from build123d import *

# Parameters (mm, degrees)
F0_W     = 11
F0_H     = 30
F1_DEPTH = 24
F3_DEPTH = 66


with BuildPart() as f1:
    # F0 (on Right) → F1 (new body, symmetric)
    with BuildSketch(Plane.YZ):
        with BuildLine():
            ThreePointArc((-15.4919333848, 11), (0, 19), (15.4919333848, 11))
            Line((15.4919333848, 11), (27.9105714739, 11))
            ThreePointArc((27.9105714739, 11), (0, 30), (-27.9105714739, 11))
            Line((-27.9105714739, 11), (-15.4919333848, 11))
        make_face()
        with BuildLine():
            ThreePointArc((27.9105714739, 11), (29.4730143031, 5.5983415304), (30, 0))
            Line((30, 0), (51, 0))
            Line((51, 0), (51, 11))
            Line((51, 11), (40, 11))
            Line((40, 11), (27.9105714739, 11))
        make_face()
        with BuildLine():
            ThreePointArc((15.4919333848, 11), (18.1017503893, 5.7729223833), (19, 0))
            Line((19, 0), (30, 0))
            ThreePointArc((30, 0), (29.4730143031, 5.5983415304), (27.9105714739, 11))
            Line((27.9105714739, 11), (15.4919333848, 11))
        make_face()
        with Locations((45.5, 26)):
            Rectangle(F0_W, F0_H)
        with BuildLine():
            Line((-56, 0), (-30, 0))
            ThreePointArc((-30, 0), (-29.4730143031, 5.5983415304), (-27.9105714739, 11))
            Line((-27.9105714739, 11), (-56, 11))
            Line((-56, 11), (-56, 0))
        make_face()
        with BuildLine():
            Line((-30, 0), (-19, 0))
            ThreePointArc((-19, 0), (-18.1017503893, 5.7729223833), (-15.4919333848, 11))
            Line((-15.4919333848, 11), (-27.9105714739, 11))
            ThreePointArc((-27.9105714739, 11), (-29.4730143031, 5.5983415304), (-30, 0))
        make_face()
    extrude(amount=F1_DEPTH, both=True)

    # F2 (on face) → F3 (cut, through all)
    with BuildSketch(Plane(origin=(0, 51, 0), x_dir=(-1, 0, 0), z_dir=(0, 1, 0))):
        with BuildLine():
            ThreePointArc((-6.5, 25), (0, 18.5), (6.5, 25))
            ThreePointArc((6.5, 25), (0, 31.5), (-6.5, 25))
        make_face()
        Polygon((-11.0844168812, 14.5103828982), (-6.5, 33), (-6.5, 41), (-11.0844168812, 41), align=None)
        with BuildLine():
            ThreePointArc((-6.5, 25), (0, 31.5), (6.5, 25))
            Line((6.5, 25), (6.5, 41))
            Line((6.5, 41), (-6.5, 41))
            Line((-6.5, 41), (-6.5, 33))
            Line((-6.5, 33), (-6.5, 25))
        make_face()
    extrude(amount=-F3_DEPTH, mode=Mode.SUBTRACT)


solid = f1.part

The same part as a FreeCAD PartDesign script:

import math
import FreeCAD as App
import Part
import Sketcher
from FreeCAD import Vector
Q = App.Units.Quantity

doc = App.newDocument("Part")
body = doc.addObject("PartDesign::Body", "Body")

# Sketch on YZ plane
sketch1 = doc.addObject("Sketcher::SketchObject", "Sketch")
body.addObject(sketch1)
sketch1.AttachmentSupport = (doc.YZ_Plane, [""])
sketch1.MapMode = "FlatFace"
sketch1.addGeometry([
    Part.ArcOfCircle(Part.Circle(Vector(0, 0, 0), Vector(0, 0, 1), 19), math.radians(35), math.radians(145)),  # 0
    Part.ArcOfCircle(Part.Circle(Vector(0, 0, 0), Vector(0, 0, 1), 19), math.radians(0), math.radians(35)),  # 1
    Part.LineSegment(Vector(19, 0, 0), Vector(51, 0, 0)),  # 2
    Part.LineSegment(Vector(51, 0, 0), Vector(51, 41, 0)),  # 3
    Part.LineSegment(Vector(51, 41, 0), Vector(40, 41, 0)),  # 4
    Part.LineSegment(Vector(40, 41, 0), Vector(40, 11, 0)),  # 5
    Part.LineSegment(Vector(40, 11, 0), Vector(28, 11, 0)),  # 6
    Part.ArcOfCircle(Part.Circle(Vector(0, 0, 0), Vector(0, 0, 1), 30), math.radians(22), math.radians(158)),  # 7
    Part.LineSegment(Vector(-28, 11, 0), Vector(-56, 11, 0)),  # 8
    Part.LineSegment(Vector(-56, 11, 0), Vector(-56, 0, 0)),  # 9
    Part.LineSegment(Vector(-56, 0, 0), Vector(-19, 0, 0)),  # 10
    Part.ArcOfCircle(Part.Circle(Vector(0, 0, 0), Vector(0, 0, 1), 19), math.radians(145), math.radians(180)),  # 11
], False)
sketch1.addConstraint([
    Sketcher.Constraint("Tangent", 0, 1, 1, 2),
    Sketcher.Constraint("Coincident", 1, 1, 2, 1),
    Sketcher.Constraint("Coincident", 2, 2, 3, 1),
    Sketcher.Constraint("Coincident", 3, 2, 4, 1),
    Sketcher.Constraint("Coincident", 4, 2, 5, 1),
    Sketcher.Constraint("Coincident", 5, 2, 6, 1),
    Sketcher.Constraint("Coincident", 6, 2, 7, 1),
    Sketcher.Constraint("Coincident", 7, 2, 8, 1),
    Sketcher.Constraint("Coincident", 8, 2, 9, 1),
    Sketcher.Constraint("Coincident", 9, 2, 10, 1),
    Sketcher.Constraint("Coincident", 10, 2, 11, 2),
    Sketcher.Constraint("Tangent", 11, 1, 0, 2),
    Sketcher.Constraint("Horizontal", 2),
    Sketcher.Constraint("Vertical", 3),
    Sketcher.Constraint("Horizontal", 4),
    Sketcher.Constraint("Vertical", 5),
    Sketcher.Constraint("Horizontal", 6),
    Sketcher.Constraint("Horizontal", 8),
    Sketcher.Constraint("Vertical", 9),
    Sketcher.Constraint("Horizontal", 10),
    Sketcher.Constraint("Coincident", 0, 3, -1, 1),
    Sketcher.Constraint("Coincident", 7, 3, -1, 1),
    Sketcher.Constraint("Equal", 0, 1),
    Sketcher.Constraint("Equal", 1, 11),
    Sketcher.Constraint("PointOnObject", 1, 1, -1),
    Sketcher.Constraint("PointOnObject", 9, 2, -1),
    Sketcher.Constraint("Horizontal", 0, 1, 5, 2),
    Sketcher.Constraint("Horizontal", 6, 2, 7, 2),
    Sketcher.Constraint("Horizontal", 8, 2, 11, 1),
    Sketcher.Constraint("Equal", 4, 9),
    Sketcher.Constraint("Radius", 0, Q("19 mm")),
    Sketcher.Constraint("Radius", 7, Q("30 mm")),
    Sketcher.Constraint("DistanceX", 2, 1, 2, 2, Q("32 mm")),
    Sketcher.Constraint("DistanceX", 4, 2, 4, 1, Q("11 mm")),
    Sketcher.Constraint("DistanceX", 10, 1, 10, 2, Q("37 mm")),
    Sketcher.Constraint("DistanceY", 3, 1, 3, 2, Q("41 mm")),
])
pad1 = doc.addObject("PartDesign::Pad", "Pad")
body.addObject(pad1)
pad1.Profile = sketch1
pad1.Length = 48
pad1.Midplane = True

# Sketch on XZ plane
sketch2 = doc.addObject("Sketcher::SketchObject", "Sketch001")
body.addObject(sketch2)
sketch2.AttachmentSupport = (doc.XZ_Plane, [""])
sketch2.MapMode = "FlatFace"
sketch2.AttachmentOffset = App.Placement(Vector(0, 0, -51), App.Rotation())
sketch2.addGeometry([
    Part.ArcOfCircle(Part.Circle(Vector(0, 25, 0), Vector(0, 0, 1), 6), math.radians(180), math.radians(360)),  # 0
    Part.LineSegment(Vector(-6, 25, 0), Vector(-6, 41, 0)),  # 1
    Part.LineSegment(Vector(-6, 41, 0), Vector(11, 41, 0)),  # 2
    Part.LineSegment(Vector(11, 41, 0), Vector(11, 15, 0)),  # 3
    Part.LineSegment(Vector(11, 15, 0), Vector(6, 33, 0)),  # 4
    Part.LineSegment(Vector(6, 33, 0), Vector(6, 25, 0)),  # 5
], False)
sketch2.addConstraint([
    Sketcher.Constraint("Tangent", 0, 1, 1, 1),
    Sketcher.Constraint("Coincident", 1, 2, 2, 1),
    Sketcher.Constraint("Coincident", 2, 2, 3, 1),
    Sketcher.Constraint("Coincident", 3, 2, 4, 1),
    Sketcher.Constraint("Coincident", 4, 2, 5, 1),
    Sketcher.Constraint("Tangent", 5, 2, 0, 2),
    Sketcher.Constraint("Vertical", 1),
    Sketcher.Constraint("Horizontal", 2),
    Sketcher.Constraint("Vertical", 3),
    Sketcher.Constraint("Vertical", 5),
    Sketcher.Constraint("PointOnObject", 0, 3, -2),
    Sketcher.Constraint("Radius", 0, Q("6.5 mm")),
    Sketcher.Constraint("DistanceY", 1, 1, 1, 2, Q("16 mm")),
    Sketcher.Constraint("DistanceY", 5, 2, 5, 1, Q("8 mm")),
    Sketcher.Constraint("DistanceY", -1, 1, 0, 3, Q("25 mm")),
    Sketcher.Constraint("DistanceX", 2, 1, 2, 2, Q("17.584417 mm")),
    Sketcher.Constraint("DistanceY", 3, 2, 3, 1, Q("26.489617 mm")),
])
pocket1 = doc.addObject("PartDesign::Pocket", "Pocket")
body.addObject(pocket1)
pocket1.Profile = sketch2
pocket1.Length = 66
pocket1.Reversed = True

doc.recompute()
